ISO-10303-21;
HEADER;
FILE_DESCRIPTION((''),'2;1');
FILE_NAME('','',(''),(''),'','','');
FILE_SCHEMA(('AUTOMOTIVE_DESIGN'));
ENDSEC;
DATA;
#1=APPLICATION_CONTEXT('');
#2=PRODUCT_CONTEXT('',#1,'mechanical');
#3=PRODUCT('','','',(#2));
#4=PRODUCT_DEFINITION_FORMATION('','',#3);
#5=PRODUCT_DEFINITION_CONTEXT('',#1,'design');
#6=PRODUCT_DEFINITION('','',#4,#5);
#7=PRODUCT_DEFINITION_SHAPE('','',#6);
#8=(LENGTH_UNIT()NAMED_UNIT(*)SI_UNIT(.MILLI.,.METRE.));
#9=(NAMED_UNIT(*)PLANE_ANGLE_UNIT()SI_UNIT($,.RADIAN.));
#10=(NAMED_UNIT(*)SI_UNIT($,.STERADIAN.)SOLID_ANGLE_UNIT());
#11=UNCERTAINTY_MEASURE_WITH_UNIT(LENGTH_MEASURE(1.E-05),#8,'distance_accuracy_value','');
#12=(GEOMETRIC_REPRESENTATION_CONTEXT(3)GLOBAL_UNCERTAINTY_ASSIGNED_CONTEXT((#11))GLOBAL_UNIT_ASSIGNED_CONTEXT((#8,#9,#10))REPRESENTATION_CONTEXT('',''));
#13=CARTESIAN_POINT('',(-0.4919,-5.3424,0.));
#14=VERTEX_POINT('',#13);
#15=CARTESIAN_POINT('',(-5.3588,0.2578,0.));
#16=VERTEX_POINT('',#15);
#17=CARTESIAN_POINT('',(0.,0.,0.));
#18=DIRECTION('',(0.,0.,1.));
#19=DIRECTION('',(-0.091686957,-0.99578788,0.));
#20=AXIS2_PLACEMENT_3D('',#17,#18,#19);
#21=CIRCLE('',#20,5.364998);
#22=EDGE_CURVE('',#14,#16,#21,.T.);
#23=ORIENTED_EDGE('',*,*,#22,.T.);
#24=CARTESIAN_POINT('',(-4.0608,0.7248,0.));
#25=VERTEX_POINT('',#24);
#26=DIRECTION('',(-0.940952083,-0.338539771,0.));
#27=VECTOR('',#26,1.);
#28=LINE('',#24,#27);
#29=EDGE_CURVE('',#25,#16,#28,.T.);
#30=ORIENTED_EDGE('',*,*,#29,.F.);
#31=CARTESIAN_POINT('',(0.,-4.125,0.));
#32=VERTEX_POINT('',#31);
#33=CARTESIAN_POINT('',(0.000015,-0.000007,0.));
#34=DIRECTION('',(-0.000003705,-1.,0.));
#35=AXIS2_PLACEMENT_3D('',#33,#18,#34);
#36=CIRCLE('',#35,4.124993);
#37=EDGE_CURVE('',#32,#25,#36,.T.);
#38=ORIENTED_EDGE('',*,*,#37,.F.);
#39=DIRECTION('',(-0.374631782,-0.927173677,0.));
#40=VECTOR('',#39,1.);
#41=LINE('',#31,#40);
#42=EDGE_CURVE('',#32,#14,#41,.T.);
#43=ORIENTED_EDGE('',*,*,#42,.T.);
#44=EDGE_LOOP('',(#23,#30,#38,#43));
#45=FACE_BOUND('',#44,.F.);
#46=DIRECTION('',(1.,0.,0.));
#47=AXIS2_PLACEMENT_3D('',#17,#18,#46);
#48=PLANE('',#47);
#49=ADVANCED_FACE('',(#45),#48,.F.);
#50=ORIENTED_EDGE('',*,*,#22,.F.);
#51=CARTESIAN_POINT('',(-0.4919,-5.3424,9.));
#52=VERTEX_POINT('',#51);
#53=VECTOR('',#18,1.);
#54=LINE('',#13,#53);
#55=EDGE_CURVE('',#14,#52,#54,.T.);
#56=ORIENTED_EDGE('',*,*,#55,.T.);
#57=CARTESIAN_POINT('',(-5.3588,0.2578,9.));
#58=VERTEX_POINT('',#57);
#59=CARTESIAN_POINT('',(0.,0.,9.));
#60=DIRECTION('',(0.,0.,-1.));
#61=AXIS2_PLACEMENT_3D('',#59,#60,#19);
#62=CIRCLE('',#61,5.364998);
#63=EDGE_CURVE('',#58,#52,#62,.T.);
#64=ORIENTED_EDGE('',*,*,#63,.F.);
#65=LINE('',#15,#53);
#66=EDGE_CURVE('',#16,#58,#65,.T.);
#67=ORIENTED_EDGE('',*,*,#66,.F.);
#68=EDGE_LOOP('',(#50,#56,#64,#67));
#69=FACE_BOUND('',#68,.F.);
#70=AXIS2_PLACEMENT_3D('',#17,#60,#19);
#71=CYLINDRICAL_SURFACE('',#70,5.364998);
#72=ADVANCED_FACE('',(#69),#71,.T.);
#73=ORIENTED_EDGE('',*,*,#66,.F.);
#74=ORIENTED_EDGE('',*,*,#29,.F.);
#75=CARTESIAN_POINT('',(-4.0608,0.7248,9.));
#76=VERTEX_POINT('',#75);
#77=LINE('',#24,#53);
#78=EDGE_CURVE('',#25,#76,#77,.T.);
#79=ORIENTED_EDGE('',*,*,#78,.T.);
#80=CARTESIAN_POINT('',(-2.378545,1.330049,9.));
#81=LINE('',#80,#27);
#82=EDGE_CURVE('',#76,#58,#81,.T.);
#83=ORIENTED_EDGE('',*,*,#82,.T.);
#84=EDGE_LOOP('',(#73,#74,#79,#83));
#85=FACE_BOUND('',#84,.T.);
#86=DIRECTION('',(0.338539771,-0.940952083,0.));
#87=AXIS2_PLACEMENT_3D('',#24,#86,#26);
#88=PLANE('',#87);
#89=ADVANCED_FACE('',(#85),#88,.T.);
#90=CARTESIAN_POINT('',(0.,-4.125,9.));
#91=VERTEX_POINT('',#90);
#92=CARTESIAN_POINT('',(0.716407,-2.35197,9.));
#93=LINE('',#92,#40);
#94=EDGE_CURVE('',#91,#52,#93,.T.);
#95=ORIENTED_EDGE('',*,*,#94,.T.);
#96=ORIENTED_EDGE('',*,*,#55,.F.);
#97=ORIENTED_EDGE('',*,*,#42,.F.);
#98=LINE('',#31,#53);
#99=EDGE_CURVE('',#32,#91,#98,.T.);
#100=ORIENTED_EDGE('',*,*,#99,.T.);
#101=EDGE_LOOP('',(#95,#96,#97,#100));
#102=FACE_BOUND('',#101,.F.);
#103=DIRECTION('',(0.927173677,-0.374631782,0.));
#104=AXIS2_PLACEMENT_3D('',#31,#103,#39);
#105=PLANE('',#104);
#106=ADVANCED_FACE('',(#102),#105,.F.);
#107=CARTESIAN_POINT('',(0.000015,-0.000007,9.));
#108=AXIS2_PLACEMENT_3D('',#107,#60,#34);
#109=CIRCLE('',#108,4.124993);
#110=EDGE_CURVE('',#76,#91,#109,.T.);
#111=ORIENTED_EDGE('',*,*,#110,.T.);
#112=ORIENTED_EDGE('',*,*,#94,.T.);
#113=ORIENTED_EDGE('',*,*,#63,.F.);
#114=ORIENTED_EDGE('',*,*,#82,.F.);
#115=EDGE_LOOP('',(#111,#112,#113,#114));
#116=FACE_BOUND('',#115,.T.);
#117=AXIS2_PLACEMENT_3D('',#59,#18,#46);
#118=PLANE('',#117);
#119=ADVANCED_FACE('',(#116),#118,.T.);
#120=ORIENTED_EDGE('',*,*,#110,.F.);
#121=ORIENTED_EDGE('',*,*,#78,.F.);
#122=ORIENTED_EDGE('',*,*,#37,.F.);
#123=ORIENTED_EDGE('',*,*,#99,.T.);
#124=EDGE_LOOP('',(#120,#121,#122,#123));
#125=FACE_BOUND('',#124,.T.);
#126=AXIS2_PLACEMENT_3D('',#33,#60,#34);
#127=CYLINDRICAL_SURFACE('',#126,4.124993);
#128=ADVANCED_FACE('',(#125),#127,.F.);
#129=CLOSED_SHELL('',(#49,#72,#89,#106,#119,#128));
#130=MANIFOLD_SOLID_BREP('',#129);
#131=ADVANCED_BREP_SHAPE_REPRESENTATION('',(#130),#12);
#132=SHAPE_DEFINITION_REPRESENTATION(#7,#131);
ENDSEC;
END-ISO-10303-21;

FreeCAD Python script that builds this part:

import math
import FreeCAD as App
import Part
import Sketcher

V = App.Vector
Q = App.Units.Quantity


def add_polygon(sketch, points):
    """Adds a closed chain of lines whose ends are joined by coincident constraints."""
    first, n = sketch.GeometryCount, len(points)
    for a, b in zip(points, points[1:] + points[:1]):
        sketch.addGeometry(Part.LineSegment(App.Vector(*a, 0), App.Vector(*b, 0)), False)
    for i in range(n):
        sketch.addConstraint(Sketcher.Constraint("Coincident", first + i, 2, first + (i + 1) % n, 1))

doc = App.newDocument("Part")
body = doc.addObject("PartDesign::Body", "Body")

# Sketch on XY plane
sketch1 = body.newObject("Sketcher::SketchObject", "Sketch")
sketch1.AttachmentSupport = (doc.getObject("XY_Plane"), [""])
sketch1.MapMode = "FlatFace"
sketch1.addGeometry(Part.ArcOfCircle(Part.Circle(V(0, 0, 0), V(0, 0, 1), 4.1), math.radians(-90), math.radians(170)), False)
sketch1.addGeometry(Part.LineSegment(V(0, -4.1, 0), V(-0.5, -5.3, 0)), False)
sketch1.addGeometry(Part.ArcOfCircle(Part.Circle(V(0, 0, 0), V(0, 0, 1), 5.4), math.radians(-95), math.radians(177)), False)
sketch1.addGeometry(Part.LineSegment(V(-5.4, 0.3, 0), V(-4.1, 0.7, 0)), False)
sketch1.addConstraint(Sketcher.Constraint("Coincident", 0, 1, 1, 1))
sketch1.addConstraint(Sketcher.Constraint("Coincident", 1, 2, 2, 1))
sketch1.addConstraint(Sketcher.Constraint("Coincident", 2, 2, 3, 1))
sketch1.addConstraint(Sketcher.Constraint("Coincident", 3, 2, 0, 2))
sketch1.addConstraint(Sketcher.Constraint("Coincident", 0, 3, -1, 1))
sketch1.addConstraint(Sketcher.Constraint("Coincident", 2, 3, -1, 1))
sketch1.addConstraint(Sketcher.Constraint("PointOnObject", 0, 1, -2))
sketch1.addConstraint(Sketcher.Constraint("Radius", 0, Q("4.125 mm")))
sketch1.addConstraint(Sketcher.Constraint("Radius", 2, Q("5.365 mm")))
sketch1.addConstraint(Sketcher.Constraint("Distance", 1, Q("1.313 mm")))
sketch1.addConstraint(Sketcher.Constraint("DistanceX", 2, 2, 1, 2, Q("4.867 mm")))
sketch1.addConstraint(Sketcher.Constraint("DistanceX", 2, 2, 3, 2, Q("1.298 mm")))
pad1 = body.newObject("PartDesign::Pad", "Pad")
pad1.Profile = sketch1
pad1.Length = 19

# Sketch on XY plane
sketch2 = body.newObject("Sketcher::SketchObject", "Sketch001")
sketch2.AttachmentSupport = (doc.getObject("XY_Plane"), [""])
sketch2.MapMode = "FlatFace"
sketch2.AttachmentOffset = App.Placement(V(0, 0, 19), App.Rotation())
add_polygon(sketch2, [(1.3, -4.7), (32.1, -35.5), (33.8, -33.8), (35.6, -32), (5.6, -2), (4.8, -1.2)])  # lines 0-5
add_polygon(sketch2, [(-1.3, 4.7), (-32.1, 35.5), (-33.8, 33.8), (-35.6, 32), (-5.6, 2), (-4.8, 1.2)])  # lines 6-11
add_polygon(sketch2, [(4.7, 1.3), (35.5, 32.1), (33.8, 33.8), (32, 35.6), (2, 5.6), (1.2, 4.8)])  # lines 12-17
sketch2.addConstraint(Sketcher.Constraint("Symmetric", 0, 2, 6, 2, -1, 1))
sketch2.addConstraint(Sketcher.Constraint("Symmetric", 1, 2, 7, 2, -1, 1))
sketch2.addConstraint(Sketcher.Constraint("Symmetric", 2, 2, 8, 2, -1, 1))
sketch2.addConstraint(Sketcher.Constraint("Symmetric", 3, 2, 9, 2, -1, 1))
sketch2.addConstraint(Sketcher.Constraint("Symmetric", 4, 2, 10, 2, -1, 1))
sketch2.addConstraint(Sketcher.Constraint("Symmetric", 5, 2, 11, 2, -1, 1))
sketch2.addConstraint(Sketcher.Constraint("Symmetric", 7, 2, 13, 2, -2))
sketch2.addConstraint(Sketcher.Constraint("Perpendicular", 0, 1))
sketch2.addConstraint(Sketcher.Constraint("Parallel", 1, 2))
sketch2.addConstraint(Sketcher.Constraint("Perpendicular", 2, 3))
sketch2.addConstraint(Sketcher.Constraint("Parallel", 3, 4))
sketch2.addConstraint(Sketcher.Constraint("Perpendicular", 4, 5))
sketch2.addConstraint(Sketcher.Constraint("Parallel", 11, 12))
sketch2.addConstraint(Sketcher.Constraint("Perpendicular", 12, 13))
sketch2.addConstraint(Sketcher.Constraint("Parallel", 13, 14))
sketch2.addConstraint(Sketcher.Constraint("Perpendicular", 14, 15))
sketch2.addConstraint(Sketcher.Constraint("Parallel", 15, 16))
sketch2.addConstraint(Sketcher.Constraint("Perpendicular", 16, 17))
sketch2.addConstraint(Sketcher.Constraint("Equal", 6, 12))
sketch2.addConstraint(Sketcher.Constraint("Equal", 7, 13))
sketch2.addConstraint(Sketcher.Constraint("Equal", 8, 14))
sketch2.addConstraint(Sketcher.Constraint("Equal", 9, 15))
sketch2.addConstraint(Sketcher.Constraint("DistanceX", 3, 2, 2, 2, Q("30 mm")))
sketch2.addConstraint(Sketcher.Constraint("DistanceY", 2, 2, 3, 2, Q("30 mm")))
sketch2.addConstraint(Sketcher.Constraint("DistanceY", 3, 2, 7, 2, Q("35.79 mm")))
sketch2.addConstraint(Sketcher.Constraint("Distance", 4, Q("1.114 mm")))
sketch2.addConstraint(Sketcher.Constraint("DistanceY", 0, 2, -1, 1, Q("35.527 mm")))
sketch2.addConstraint(Sketcher.Constraint("DistanceX", -1, 1, 4, 2, Q("4.803 mm")))
sketch2.addConstraint(Sketcher.Constraint("DistanceX", -1, 1, 12, 2, Q("35.527 mm")))
pad2 = body.newObject("PartDesign::Pad", "Pad001")
pad2.Profile = sketch2
pad2.Length = 2
pad2.Reversed = True

# Sketch on XY plane
sketch3 = body.newObject("Sketcher::SketchObject", "Sketch002")
sketch3.AttachmentSupport = (doc.getObject("XY_Plane"), [""])
sketch3.MapMode = "FlatFace"
sketch3.AttachmentOffset = App.Placement(V(0, 0, 19), App.Rotation())
sketch3.addGeometry(Part.Circle(V(0, 0, 0), V(0, 0, 1), 50), False)
sketch3.addGeometry(Part.Circle(V(0, 0, 0), V(0, 0, 1), 48), False)
sketch3.addConstraint(Sketcher.Constraint("Coincident", 0, 3, -1, 1))
sketch3.addConstraint(Sketcher.Constraint("Coincident", 1, 3, -1, 1))
sketch3.addConstraint(Sketcher.Constraint("Diameter", 0, Q("99.5 mm")))
sketch3.addConstraint(Sketcher.Constraint("Diameter", 1, Q("95.5 mm")))
pad3 = body.newObject("PartDesign::Pad", "Pad002")
pad3.Profile = sketch3
pad3.Length = 2
pad3.Reversed = True

# Sketch on XY plane
sketch4 = body.newObject("Sketcher::SketchObject", "Sketch003")
sketch4.AttachmentSupport = (doc.getObject("XY_Plane"), [""])
sketch4.MapMode = "FlatFace"
sketch4.AttachmentOffset = App.Placement(V(0, 0, 19), App.Rotation())
add_polygon(sketch4, [(57, 54), (-57, 54), (-57, -54), (57, -54)])  # lines 0-3
sketch4.addConstraint(Sketcher.Constraint("Horizontal", 0))
sketch4.addConstraint(Sketcher.Constraint("Vertical", 1))
sketch4.addConstraint(Sketcher.Constraint("Horizontal", 2))
sketch4.addConstraint(Sketcher.Constraint("Vertical", 3))
sketch4.addConstraint(Sketcher.Constraint("Symmetric", 0, 2, 2, 2, -1, 1))
sketch4.addConstraint(Sketcher.Constraint("DistanceX", 0, 2, 0, 1, Q("114.6312 mm")))
sketch4.addConstraint(Sketcher.Constraint("DistanceY", 1, 2, 1, 1, Q("107.4322 mm")))
pocket1 = body.newObject("PartDesign::Pocket", "Pocket")
pocket1.Profile = sketch4
pocket1.Length = 10

doc.recompute()
